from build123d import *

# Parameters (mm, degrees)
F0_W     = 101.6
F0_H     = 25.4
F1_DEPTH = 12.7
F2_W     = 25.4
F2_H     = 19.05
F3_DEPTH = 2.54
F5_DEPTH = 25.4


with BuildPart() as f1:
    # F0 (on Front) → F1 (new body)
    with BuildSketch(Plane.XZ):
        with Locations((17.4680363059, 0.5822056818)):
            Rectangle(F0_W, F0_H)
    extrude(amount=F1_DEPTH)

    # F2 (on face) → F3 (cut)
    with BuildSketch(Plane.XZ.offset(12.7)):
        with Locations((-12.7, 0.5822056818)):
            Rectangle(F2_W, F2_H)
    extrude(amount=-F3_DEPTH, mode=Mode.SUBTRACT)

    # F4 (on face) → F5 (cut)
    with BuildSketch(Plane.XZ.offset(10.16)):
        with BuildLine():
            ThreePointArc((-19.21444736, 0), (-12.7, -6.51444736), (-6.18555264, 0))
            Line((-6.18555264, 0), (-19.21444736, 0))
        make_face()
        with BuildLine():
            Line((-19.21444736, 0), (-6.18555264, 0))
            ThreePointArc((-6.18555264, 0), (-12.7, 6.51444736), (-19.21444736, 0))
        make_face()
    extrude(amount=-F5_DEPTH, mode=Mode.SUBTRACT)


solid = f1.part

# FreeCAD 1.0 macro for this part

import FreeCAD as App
import Part
import Sketcher
from FreeCAD import Vector
Q = App.Units.Quantity

doc = App.newDocument("Part")
body = doc.addObject("PartDesign::Body", "Body")

sketch1 = doc.addObject("Sketcher::SketchObject", "Sketch")
body.addObject(sketch1)
sketch1.AttachmentSupport = (doc.XZ_Plane, [""])
sketch1.MapMode = "FlatFace"
sketch1.addGeometry([
    Part.LineSegment(Vector(-33.331964, 13.282206, 0), Vector(-33.331964, -12.117794, 0)),
    Part.LineSegment(Vector(-33.331964, -12.117794, 0), Vector(68.268036, -12.117794, 0)),
    Part.LineSegment(Vector(68.268036, -12.117794, 0), Vector(68.268036, 13.282206, 0)),
    Part.LineSegment(Vector(68.268036, 13.282206, 0), Vector(-33.331964, 13.282206, 0)),
], False)
sketch1.addConstraint([
    Sketcher.Constraint("Coincident", 0, 2, 1, 1),
    Sketcher.Constraint("Coincident", 1, 2, 2, 1),
    Sketcher.Constraint("Coincident", 2, 2, 3, 1),
    Sketcher.Constraint("Coincident", 3, 2, 0, 1),
    Sketcher.Constraint("Vertical", 0),
    Sketcher.Constraint("Horizontal", 1),
    Sketcher.Constraint("Vertical", 2),
    Sketcher.Constraint("Horizontal", 3),
    Sketcher.Constraint("DistanceX", 1, 1, 1, 2, Q("4 in")),
    Sketcher.Constraint("DistanceY", 0, 2, 0, 1, Q("1 in")),
    Sketcher.Constraint("DistanceX", 0, 2, -1, 1, Q("33.331964 mm")),
    Sketcher.Constraint("DistanceY", 0, 2, -1, 1, Q("12.117794 mm")),
])
pad1 = doc.addObject("PartDesign::Pad", "Pad")
body.addObject(pad1)
pad1.Profile = sketch1
pad1.Length = Q("0.5 in")

sketch2 = doc.addObject("Sketcher::SketchObject", "Sketch001")
body.addObject(sketch2)
sketch2.AttachmentSupport = (doc.XZ_Plane, [""])
sketch2.MapMode = "FlatFace"
sketch2.AttachmentOffset = App.Placement(Vector(0, 0, 0.5 * 25.4), App.Rotation())
sketch2.addGeometry([
    Part.LineSegment(Vector(-25.4, 10.107206, 0), Vector(-25.4, -8.942794, 0)),
    Part.LineSegment(Vector(-25.4, -8.942794, 0), Vector(0, -8.942794, 0)),
    Part.LineSegment(Vector(0, -8.942794, 0), Vector(0, 10.107206, 0)),
    Part.LineSegment(Vector(0, 10.107206, 0), Vector(-25.4, 10.107206, 0)),
], False)
sketch2.addConstraint([
    Sketcher.Constraint("Coincident", 0, 2, 1, 1),
    Sketcher.Constraint("Coincident", 1, 2, 2, 1),
    Sketcher.Constraint("Coincident", 2, 2, 3, 1),
    Sketcher.Constraint("Coincident", 3, 2, 0, 1),
    Sketcher.Constraint("Vertical", 0),
    Sketcher.Constraint("Horizontal", 1),
    Sketcher.Constraint("Vertical", 2),
    Sketcher.Constraint("Horizontal", 3),
    Sketcher.Constraint("PointOnObject", 1, 2, -2),
    Sketcher.Constraint("DistanceX", 1, 1, 1, 2, Q("1 in")),
    Sketcher.Constraint("DistanceY", 0, 2, 0, 1, Q("0.75 in")),
    Sketcher.Constraint("DistanceY", 0, 2, -1, 1, Q("8.942794 mm")),
])
pocket1 = doc.addObject("PartDesign::Pocket", "Pocket")
body.addObject(pocket1)
pocket1.Profile = sketch2
pocket1.Length = Q("0.1 in")

sketch3 = doc.addObject("Sketcher::SketchObject", "Sketch002")
body.addObject(sketch3)
sketch3.AttachmentSupport = (doc.XZ_Plane, [""])
sketch3.MapMode = "FlatFace"
sketch3.AttachmentOffset = App.Placement(Vector(0, 0, 0.4 * 25.4), App.Rotation())
sketch3.addGeometry(Part.Circle(Vector(-12.7, 0, 0), Vector(0, 0, 1), 6.514447), False)
sketch3.addConstraint([
    Sketcher.Constraint("PointOnObject", 0, 3, -1),
    Sketcher.Constraint("DistanceX", 0, 3, -1, 1, Q("0.5 in")),
    Sketcher.Constraint("Diameter", 0, Q("13.028895 mm")),
])
pocket2 = doc.addObject("PartDesign::Pocket", "Pocket001")
body.addObject(pocket2)
pocket2.Profile = sketch3
pocket2.Length = Q("1 in")

doc.recompute()
